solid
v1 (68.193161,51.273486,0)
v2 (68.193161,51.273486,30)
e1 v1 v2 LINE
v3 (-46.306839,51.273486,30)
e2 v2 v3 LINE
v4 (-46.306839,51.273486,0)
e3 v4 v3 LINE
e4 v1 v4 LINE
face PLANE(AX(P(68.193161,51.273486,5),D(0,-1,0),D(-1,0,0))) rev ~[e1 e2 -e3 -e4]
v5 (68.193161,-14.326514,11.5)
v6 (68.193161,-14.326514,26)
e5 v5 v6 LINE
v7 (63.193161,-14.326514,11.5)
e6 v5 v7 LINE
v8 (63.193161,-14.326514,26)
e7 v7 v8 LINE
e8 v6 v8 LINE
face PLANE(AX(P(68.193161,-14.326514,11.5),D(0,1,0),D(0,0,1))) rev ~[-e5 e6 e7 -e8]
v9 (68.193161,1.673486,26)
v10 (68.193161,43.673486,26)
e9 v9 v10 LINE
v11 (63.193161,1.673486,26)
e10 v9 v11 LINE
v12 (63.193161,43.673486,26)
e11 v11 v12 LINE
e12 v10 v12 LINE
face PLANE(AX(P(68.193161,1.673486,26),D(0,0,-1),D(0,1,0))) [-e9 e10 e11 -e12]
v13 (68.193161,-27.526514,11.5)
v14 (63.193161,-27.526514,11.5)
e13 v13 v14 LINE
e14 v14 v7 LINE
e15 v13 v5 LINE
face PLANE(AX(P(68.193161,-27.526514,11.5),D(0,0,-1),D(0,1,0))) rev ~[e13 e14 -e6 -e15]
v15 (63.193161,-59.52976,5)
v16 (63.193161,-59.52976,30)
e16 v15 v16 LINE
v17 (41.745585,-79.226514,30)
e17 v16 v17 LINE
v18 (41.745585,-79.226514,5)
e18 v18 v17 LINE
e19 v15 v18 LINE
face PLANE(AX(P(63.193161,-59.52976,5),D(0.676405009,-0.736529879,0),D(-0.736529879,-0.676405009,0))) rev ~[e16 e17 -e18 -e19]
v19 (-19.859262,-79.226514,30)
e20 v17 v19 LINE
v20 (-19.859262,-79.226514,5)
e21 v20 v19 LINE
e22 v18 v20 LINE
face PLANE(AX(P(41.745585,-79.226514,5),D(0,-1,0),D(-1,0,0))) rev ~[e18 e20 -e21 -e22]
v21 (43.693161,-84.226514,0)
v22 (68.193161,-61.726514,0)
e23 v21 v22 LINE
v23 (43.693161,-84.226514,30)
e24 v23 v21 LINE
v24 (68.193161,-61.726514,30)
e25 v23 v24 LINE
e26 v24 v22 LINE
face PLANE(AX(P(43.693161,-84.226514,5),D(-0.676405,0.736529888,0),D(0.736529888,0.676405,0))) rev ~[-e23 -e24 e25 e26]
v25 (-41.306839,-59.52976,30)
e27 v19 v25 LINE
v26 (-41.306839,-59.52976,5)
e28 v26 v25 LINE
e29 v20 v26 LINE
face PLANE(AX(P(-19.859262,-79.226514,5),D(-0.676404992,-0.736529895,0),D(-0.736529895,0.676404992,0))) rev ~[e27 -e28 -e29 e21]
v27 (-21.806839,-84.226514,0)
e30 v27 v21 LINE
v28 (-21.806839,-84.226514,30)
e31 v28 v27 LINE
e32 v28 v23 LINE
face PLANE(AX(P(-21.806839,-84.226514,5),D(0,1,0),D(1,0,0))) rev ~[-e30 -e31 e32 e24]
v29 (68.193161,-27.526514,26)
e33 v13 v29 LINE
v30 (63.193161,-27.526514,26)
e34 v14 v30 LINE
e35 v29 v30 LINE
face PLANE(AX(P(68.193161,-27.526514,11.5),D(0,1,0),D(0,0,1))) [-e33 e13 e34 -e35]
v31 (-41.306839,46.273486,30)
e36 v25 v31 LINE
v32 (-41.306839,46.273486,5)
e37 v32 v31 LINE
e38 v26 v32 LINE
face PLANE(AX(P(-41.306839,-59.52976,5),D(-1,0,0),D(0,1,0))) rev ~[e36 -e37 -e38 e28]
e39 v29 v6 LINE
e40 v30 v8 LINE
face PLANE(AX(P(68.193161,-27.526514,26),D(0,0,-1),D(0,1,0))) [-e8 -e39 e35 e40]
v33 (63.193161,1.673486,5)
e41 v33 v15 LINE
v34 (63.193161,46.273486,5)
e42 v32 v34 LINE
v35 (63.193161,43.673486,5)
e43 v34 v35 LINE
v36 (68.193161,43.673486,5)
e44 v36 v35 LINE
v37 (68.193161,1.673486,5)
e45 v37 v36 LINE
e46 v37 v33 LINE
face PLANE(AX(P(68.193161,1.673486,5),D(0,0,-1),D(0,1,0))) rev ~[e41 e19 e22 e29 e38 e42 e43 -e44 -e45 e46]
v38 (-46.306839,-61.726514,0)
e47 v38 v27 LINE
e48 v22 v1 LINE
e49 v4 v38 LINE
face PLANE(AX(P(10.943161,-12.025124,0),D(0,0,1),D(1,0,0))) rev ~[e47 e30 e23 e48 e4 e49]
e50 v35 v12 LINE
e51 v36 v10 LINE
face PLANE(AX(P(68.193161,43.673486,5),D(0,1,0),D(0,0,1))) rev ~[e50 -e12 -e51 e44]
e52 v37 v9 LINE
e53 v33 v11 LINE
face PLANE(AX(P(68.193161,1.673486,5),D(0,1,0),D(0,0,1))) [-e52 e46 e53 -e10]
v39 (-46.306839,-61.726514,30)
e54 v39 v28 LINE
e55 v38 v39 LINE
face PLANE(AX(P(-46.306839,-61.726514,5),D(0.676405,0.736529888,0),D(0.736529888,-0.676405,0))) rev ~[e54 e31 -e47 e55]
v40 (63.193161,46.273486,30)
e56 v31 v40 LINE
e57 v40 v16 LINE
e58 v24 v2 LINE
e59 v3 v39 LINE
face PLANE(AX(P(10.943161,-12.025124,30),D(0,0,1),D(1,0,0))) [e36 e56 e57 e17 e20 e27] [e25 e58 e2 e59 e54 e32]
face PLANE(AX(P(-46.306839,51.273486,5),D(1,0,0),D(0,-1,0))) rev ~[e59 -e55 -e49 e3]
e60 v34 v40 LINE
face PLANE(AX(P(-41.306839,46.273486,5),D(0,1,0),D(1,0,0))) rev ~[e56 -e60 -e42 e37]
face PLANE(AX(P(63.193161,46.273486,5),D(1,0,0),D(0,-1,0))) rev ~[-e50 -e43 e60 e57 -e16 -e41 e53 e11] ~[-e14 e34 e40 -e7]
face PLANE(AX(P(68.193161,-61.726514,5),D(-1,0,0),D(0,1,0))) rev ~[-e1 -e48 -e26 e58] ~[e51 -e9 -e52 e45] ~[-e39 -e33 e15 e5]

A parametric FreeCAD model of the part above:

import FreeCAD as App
import Part
import Sketcher

doc = App.newDocument("Part")
body = doc.addObject("PartDesign::Body", "Body")

# Sketch on XY plane
sketch1 = body.newObject("Sketcher::SketchObject", "Sketch")
sketch1.AttachmentSupport = (doc.getObject("XY_Plane"), [""])
sketch1.MapMode = "FlatFace"
sketch1.addGeometry(Part.LineSegment(App.Vector(68, 51, 0), App.Vector(-46, 51, 0)), False)
sketch1.addGeometry(Part.LineSegment(App.Vector(-46, 51, 0), App.Vector(-46, -62, 0)), False)
sketch1.addGeometry(Part.LineSegment(App.Vector(-46, -62, 0), App.Vector(-22, -84, 0)), False)
sketch1.addGeometry(Part.LineSegment(App.Vector(-22, -84, 0), App.Vector(44, -84, 0)), False)
sketch1.addGeometry(Part.LineSegment(App.Vector(44, -84, 0), App.Vector(68, -62, 0)), False)
sketch1.addGeometry(Part.LineSegment(App.Vector(68, -62, 0), App.Vector(68, 51, 0)), False)
sketch1.addConstraint(Sketcher.Constraint("Coincident", 0, 2, 1, 1))
sketch1.addConstraint(Sketcher.Constraint("Coincident", 1, 2, 2, 1))
sketch1.addConstraint(Sketcher.Constraint("Coincident", 2, 2, 3, 1))
sketch1.addConstraint(Sketcher.Constraint("Coincident", 3, 2, 4, 1))
sketch1.addConstraint(Sketcher.Constraint("Coincident", 4, 2, 5, 1))
sketch1.addConstraint(Sketcher.Constraint("Coincident", 5, 2, 0, 1))
sketch1.addConstraint(Sketcher.Constraint("Horizontal", 0))
sketch1.addConstraint(Sketcher.Constraint("Vertical", 1))
sketch1.addConstraint(Sketcher.Constraint("Horizontal", 3))
sketch1.addConstraint(Sketcher.Constraint("Vertical", 5))
sketch1.addConstraint(Sketcher.Constraint("Horizontal", 1, 2, 4, 2))
sketch1.addConstraint(Sketcher.Constraint("Equal", 2, 4))
sketch1.addConstraint(Sketcher.Constraint("DistanceY", 1, 2, 1, 1, 113.0))
sketch1.addConstraint(Sketcher.Constraint("DistanceX", 0, 2, 0, 1, 114.5))
sketch1.addConstraint(Sketcher.Constraint("DistanceX", 3, 1, 3, 2, 65.5))
sketch1.addConstraint(Sketcher.Constraint("DistanceY", 2, 2, 1, 2, 22.5))
sketch1.addConstraint(Sketcher.Constraint("DistanceX", 0, 2, -1, 1, 46.306839))
sketch1.addConstraint(Sketcher.Constraint("DistanceY", -1, 1, 0, 2, 51.273486))
pad1 = body.newObject("PartDesign::Pad", "Pad")
pad1.Profile = sketch1
pad1.Length = 5

# Sketch on XY plane
sketch2 = body.newObject("Sketcher::SketchObject", "Sketch001")
sketch2.AttachmentSupport = (doc.getObject("XY_Plane"), [""])
sketch2.MapMode = "FlatFace"
sketch2.AttachmentOffset = App.Placement(App.Vector(0, 0, 5), App.Rotation())
sketch2.addGeometry(Part.LineSegment(App.Vector(68, -62, 0), App.Vector(68, 51, 0)), False)
sketch2.addGeometry(Part.LineSegment(App.Vector(68, 51, 0), App.Vector(-46, 51, 0)), False)
sketch2.addGeometry(Part.LineSegment(App.Vector(-46, 51, 0), App.Vector(-46, -62, 0)), False)
sketch2.addGeometry(Part.LineSegment(App.Vector(-46, -62, 0), App.Vector(-22, -84, 0)), False)
sketch2.addGeometry(Part.LineSegment(App.Vector(-22, -84, 0), App.Vector(44, -84, 0)), False)
sketch2.addGeometry(Part.LineSegment(App.Vector(44, -84, 0), App.Vector(68, -62, 0)), False)
sketch2.addGeometry(Part.LineSegment(App.Vector(42, -79, 0), App.Vector(-20, -79, 0)), False)
sketch2.addGeometry(Part.LineSegment(App.Vector(-20, -79, 0), App.Vector(-41, -60, 0)), False)
sketch2.addGeometry(Part.LineSegment(App.Vector(-41, -60, 0), App.Vector(-41, 46, 0)), False)
sketch2.addGeometry(Part.LineSegment(App.Vector(-41, 46, 0), App.Vector(63, 46, 0)), False)
sketch2.addGeometry(Part.LineSegment(App.Vector(63, 46, 0), App.Vector(63, -60, 0)), False)
sketch2.addGeometry(Part.LineSegment(App.Vector(63, -60, 0), App.Vector(42, -79, 0)), False)
sketch2.addConstraint(Sketcher.Constraint("Coincident", 0, 2, 1, 1))
sketch2.addConstraint(Sketcher.Constraint("Coincident", 1, 2, 2, 1))
sketch2.addConstraint(Sketcher.Constraint("Coincident", 2, 2, 3, 1))
sketch2.addConstraint(Sketcher.Constraint("Coincident", 3, 2, 4, 1))
sketch2.addConstraint(Sketcher.Constraint("Coincident", 4, 2, 5, 1))
sketch2.addConstraint(Sketcher.Constraint("Coincident", 5, 2, 0, 1))
sketch2.addConstraint(Sketcher.Constraint("Coincident", 6, 2, 7, 1))
sketch2.addConstraint(Sketcher.Constraint("Coincident", 7, 2, 8, 1))
sketch2.addConstraint(Sketcher.Constraint("Coincident", 8, 2, 9, 1))
sketch2.addConstraint(Sketcher.Constraint("Coincident", 9, 2, 10, 1))
sketch2.addConstraint(Sketcher.Constraint("Coincident", 10, 2, 11, 1))
sketch2.addConstraint(Sketcher.Constraint("Coincident", 11, 2, 6, 1))
sketch2.addConstraint(Sketcher.Constraint("Vertical", 0))
sketch2.addConstraint(Sketcher.Constraint("Horizontal", 1))
sketch2.addConstraint(Sketcher.Constraint("Vertical", 2))
sketch2.addConstraint(Sketcher.Constraint("Horizontal", 4))
sketch2.addConstraint(Sketcher.Constraint("Horizontal", 6))
sketch2.addConstraint(Sketcher.Constraint("Vertical", 8))
sketch2.addConstraint(Sketcher.Constraint("Horizontal", 9))
sketch2.addConstraint(Sketcher.Constraint("Vertical", 10))
sketch2.addConstraint(Sketcher.Constraint("Parallel", 3, 7))
sketch2.addConstraint(Sketcher.Constraint("Parallel", 5, 11))
sketch2.addConstraint(Sketcher.Constraint("Horizontal", 2, 2, 5, 2))
sketch2.addConstraint(Sketcher.Constraint("Horizontal", 7, 2, 10, 2))
sketch2.addConstraint(Sketcher.Constraint("Equal", 3, 5))
sketch2.addConstraint(Sketcher.Constraint("DistanceY", 0, 1, 0, 2, 113.0))
sketch2.addConstraint(Sketcher.Constraint("DistanceX", 1, 2, 1, 1, 114.5))
sketch2.addConstraint(Sketcher.Constraint("DistanceX", 4, 1, 4, 2, 65.5))
sketch2.addConstraint(Sketcher.Constraint("DistanceX", 9, 1, 9, 2, 104.5))
sketch2.addConstraint(Sketcher.Constraint("DistanceY", 3, 2, 6, 2, 5.0))
sketch2.addConstraint(Sketcher.Constraint("DistanceX", 2, 2, 7, 2, 5.0))
sketch2.addConstraint(Sketcher.Constraint("DistanceY", 8, 2, 1, 2, 5.0))
sketch2.addConstraint(Sketcher.Constraint("DistanceY", 3, 2, 2, 2, 22.5))
sketch2.addConstraint(Sketcher.Constraint("DistanceX", 6, 2, 6, 1, 61.604847))
sketch2.addConstraint(Sketcher.Constraint("DistanceX", -1, 1, 0, 2, 68.193161))
sketch2.addConstraint(Sketcher.Constraint("DistanceY", 7, 2, -1, 1, 59.52976))
pad2 = body.newObject("PartDesign::Pad", "Pad001")
pad2.Profile = sketch2
pad2.Length = 25

# Sketch on YZ plane
sketch3 = body.newObject("Sketcher::SketchObject", "Sketch002")
sketch3.AttachmentSupport = (doc.getObject("YZ_Plane"), [""])
sketch3.MapMode = "FlatFace"
sketch3.AttachmentOffset = App.Placement(App.Vector(0, 0, 68.193161), App.Rotation())
sketch3.addGeometry(Part.LineSegment(App.Vector(-28, 26, 0), App.Vector(-28, 12, 0)), False)
sketch3.addGeometry(Part.LineSegment(App.Vector(-28, 12, 0), App.Vector(-14, 12, 0)), False)
sketch3.addGeometry(Part.LineSegment(App.Vector(-14, 12, 0), App.Vector(-14, 26, 0)), False)
sketch3.addGeometry(Part.LineSegment(App.Vector(-14, 26, 0), App.Vector(-28, 26, 0)), False)
sketch3.addGeometry(Part.LineSegment(App.Vector(2, 26, 0), App.Vector(2, 5, 0)), False)
sketch3.addGeometry(Part.LineSegment(App.Vector(2, 5, 0), App.Vector(44, 5, 0)), False)
sketch3.addGeometry(Part.LineSegment(App.Vector(44, 5, 0), App.Vector(44, 26, 0)), False)
sketch3.addGeometry(Part.LineSegment(App.Vector(44, 26, 0), App.Vector(2, 26, 0)), False)
sketch3.addConstraint(Sketcher.Constraint("Coincident", 0, 2, 1, 1))
sketch3.addConstraint(Sketcher.Constraint("Coincident", 1, 2, 2, 1))
sketch3.addConstraint(Sketcher.Constraint("Coincident", 2, 2, 3, 1))
sketch3.addConstraint(Sketcher.Constraint("Coincident", 3, 2, 0, 1))
sketch3.addConstraint(Sketcher.Constraint("Coincident", 4, 2, 5, 1))
sketch3.addConstraint(Sketcher.Constraint("Coincident", 5, 2, 6, 1))
sketch3.addConstraint(Sketcher.Constraint("Coincident", 6, 2, 7, 1))
sketch3.addConstraint(Sketcher.Constraint("Coincident", 7, 2, 4, 1))
sketch3.addConstraint(Sketcher.Constraint("Vertical", 0))
sketch3.addConstraint(Sketcher.Constraint("Horizontal", 1))
sketch3.addConstraint(Sketcher.Constraint("Vertical", 2))
sketch3.addConstraint(Sketcher.Constraint("Horizontal", 3))
sketch3.addConstraint(Sketcher.Constraint("Vertical", 4))
sketch3.addConstraint(Sketcher.Constraint("Horizontal", 5))
sketch3.addConstraint(Sketcher.Constraint("Vertical", 6))
sketch3.addConstraint(Sketcher.Constraint("Horizontal", 7))
sketch3.addConstraint(Sketcher.Constraint("Horizontal", 3, 2, 6, 2))
sketch3.addConstraint(Sketcher.Constraint("DistanceX", 5, 1, 5, 2, 42.0))
sketch3.addConstraint(Sketcher.Constraint("DistanceY", 4, 2, 4, 1, 21.0))
sketch3.addConstraint(Sketcher.Constraint("DistanceX", 1, 1, 1, 2, 13.2))
sketch3.addConstraint(Sketcher.Constraint("DistanceY", 0, 2, 0, 1, 14.5))
sketch3.addConstraint(Sketcher.Constraint("DistanceY", -1, 1, 2, 2, 26.0))
sketch3.addConstraint(Sketcher.Constraint("DistanceX", 1, 2, 4, 2, 16.0))
sketch3.addConstraint(Sketcher.Constraint("DistanceX", 0, 2, -1, 1, 27.526514))
pocket1 = body.newObject("PartDesign::Pocket", "Pocket")
pocket1.Profile = sketch3
pocket1.Length = 5

doc.recompute()
